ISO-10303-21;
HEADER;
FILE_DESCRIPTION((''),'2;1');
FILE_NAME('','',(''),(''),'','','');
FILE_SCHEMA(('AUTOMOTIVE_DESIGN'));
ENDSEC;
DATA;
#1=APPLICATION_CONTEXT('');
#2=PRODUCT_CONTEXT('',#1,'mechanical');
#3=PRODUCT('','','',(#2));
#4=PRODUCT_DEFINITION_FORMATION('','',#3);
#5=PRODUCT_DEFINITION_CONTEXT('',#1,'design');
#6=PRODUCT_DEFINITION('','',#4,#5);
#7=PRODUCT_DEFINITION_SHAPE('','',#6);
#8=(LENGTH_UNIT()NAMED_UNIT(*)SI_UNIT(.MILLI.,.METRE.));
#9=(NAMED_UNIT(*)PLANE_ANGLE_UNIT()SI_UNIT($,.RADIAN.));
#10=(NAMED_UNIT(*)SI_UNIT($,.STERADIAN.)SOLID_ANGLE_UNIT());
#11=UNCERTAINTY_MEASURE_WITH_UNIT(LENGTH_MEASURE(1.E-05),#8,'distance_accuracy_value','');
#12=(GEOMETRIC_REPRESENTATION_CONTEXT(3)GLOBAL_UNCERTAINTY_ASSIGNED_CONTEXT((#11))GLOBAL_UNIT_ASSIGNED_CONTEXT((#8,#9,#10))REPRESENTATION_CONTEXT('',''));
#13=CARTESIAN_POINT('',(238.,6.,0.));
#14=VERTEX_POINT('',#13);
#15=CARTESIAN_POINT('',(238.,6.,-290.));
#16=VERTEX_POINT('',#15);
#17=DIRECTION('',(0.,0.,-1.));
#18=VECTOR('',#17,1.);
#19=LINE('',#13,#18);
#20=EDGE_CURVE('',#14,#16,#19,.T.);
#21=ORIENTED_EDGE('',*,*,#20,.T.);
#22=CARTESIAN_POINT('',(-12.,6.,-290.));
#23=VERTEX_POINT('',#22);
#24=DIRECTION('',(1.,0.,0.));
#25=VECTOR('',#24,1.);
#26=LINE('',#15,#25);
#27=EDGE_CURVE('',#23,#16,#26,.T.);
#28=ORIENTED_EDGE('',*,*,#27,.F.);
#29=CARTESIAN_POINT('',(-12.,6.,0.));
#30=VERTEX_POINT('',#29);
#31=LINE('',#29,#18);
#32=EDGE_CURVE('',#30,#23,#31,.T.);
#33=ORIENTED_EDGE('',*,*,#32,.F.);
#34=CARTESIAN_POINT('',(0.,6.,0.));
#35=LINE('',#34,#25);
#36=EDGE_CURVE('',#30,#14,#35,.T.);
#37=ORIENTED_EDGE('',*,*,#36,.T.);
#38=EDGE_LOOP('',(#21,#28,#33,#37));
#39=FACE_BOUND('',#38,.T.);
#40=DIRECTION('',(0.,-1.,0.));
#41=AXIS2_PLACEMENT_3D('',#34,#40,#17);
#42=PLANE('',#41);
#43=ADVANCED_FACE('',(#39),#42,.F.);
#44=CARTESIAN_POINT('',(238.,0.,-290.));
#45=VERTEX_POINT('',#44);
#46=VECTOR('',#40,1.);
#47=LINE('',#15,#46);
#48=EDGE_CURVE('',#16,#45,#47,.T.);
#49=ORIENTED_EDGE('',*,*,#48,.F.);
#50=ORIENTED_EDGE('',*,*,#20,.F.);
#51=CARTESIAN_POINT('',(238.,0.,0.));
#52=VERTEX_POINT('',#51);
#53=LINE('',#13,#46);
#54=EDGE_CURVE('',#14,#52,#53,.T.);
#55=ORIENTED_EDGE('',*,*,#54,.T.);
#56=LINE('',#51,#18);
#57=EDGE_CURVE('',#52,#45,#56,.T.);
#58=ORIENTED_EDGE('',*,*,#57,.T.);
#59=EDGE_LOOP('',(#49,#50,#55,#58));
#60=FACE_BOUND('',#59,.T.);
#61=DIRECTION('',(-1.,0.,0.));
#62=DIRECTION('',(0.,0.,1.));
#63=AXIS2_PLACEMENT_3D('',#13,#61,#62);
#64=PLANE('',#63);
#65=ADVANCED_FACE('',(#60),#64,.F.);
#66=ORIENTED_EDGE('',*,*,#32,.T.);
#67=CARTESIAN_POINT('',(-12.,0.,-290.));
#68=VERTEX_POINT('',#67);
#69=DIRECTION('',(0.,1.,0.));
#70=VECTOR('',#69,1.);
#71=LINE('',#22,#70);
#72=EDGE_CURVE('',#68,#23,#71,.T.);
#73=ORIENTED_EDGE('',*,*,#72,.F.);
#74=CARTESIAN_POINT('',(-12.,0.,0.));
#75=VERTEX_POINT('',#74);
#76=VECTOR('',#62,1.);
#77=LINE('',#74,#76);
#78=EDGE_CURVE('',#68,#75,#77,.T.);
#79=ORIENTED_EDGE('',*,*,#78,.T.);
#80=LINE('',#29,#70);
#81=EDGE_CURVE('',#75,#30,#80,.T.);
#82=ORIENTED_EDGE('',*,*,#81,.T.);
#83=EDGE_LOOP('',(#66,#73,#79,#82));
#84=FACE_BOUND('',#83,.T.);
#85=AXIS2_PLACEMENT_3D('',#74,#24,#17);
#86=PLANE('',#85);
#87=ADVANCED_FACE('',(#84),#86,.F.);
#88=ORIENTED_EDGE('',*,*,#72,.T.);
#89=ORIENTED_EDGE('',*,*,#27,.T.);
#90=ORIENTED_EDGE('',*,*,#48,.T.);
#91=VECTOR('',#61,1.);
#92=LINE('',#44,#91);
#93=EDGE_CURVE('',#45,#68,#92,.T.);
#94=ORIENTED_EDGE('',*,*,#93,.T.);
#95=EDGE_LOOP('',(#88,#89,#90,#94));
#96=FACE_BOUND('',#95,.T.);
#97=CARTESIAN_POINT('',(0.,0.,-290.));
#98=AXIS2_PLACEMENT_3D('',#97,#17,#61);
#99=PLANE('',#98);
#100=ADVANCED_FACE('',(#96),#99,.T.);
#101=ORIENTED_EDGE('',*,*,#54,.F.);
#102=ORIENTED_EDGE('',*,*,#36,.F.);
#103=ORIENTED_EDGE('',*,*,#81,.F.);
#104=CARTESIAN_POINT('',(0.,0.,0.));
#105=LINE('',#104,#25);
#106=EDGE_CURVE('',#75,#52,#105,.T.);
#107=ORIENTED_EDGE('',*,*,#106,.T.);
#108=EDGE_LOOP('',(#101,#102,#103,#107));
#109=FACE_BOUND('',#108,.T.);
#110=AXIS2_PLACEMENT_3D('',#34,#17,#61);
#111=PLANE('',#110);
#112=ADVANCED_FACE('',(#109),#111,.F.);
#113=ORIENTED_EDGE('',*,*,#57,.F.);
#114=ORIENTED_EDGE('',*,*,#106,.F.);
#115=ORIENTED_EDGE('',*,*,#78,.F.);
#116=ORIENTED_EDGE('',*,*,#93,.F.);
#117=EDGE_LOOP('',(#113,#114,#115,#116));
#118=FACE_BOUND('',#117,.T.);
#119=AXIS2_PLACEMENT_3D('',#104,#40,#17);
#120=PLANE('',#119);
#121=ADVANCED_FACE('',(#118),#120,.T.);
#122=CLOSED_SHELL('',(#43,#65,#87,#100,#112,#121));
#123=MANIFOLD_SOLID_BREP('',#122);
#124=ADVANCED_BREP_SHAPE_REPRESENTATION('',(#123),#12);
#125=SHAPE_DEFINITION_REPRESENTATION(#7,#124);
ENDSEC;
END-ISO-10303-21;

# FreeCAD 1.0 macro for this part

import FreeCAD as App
import Part
import Sketcher
Q = App.Units.Quantity


def add_polygon(sketch, points):
    """Adds a closed chain of lines whose ends are joined by coincident constraints."""
    first, n = sketch.GeometryCount, len(points)
    for a, b in zip(points, points[1:] + points[:1]):
        sketch.addGeometry(Part.LineSegment(App.Vector(*a, 0), App.Vector(*b, 0)), False)
    for i in range(n):
        sketch.addConstraint(Sketcher.Constraint("Coincident", first + i, 2, first + (i + 1) % n, 1))

doc = App.newDocument("Part")
body = doc.addObject("PartDesign::Body", "Body")

# Sketch on XZ plane
sketch1 = body.newObject("Sketcher::SketchObject", "Sketch")
sketch1.AttachmentSupport = (doc.getObject("XZ_Plane"), [""])
sketch1.MapMode = "FlatFace"
add_polygon(sketch1, [(0, -250), (0, 0), (238, 0), (238, -250)])  # lines 0-3
sketch1.addConstraint([
    Sketcher.Constraint("Vertical", 0),
    Sketcher.Constraint("Horizontal", 1),
    Sketcher.Constraint("Vertical", 2),
    Sketcher.Constraint("Horizontal", 3),
    Sketcher.Constraint("Coincident", 0, 2, -1, 1),
    Sketcher.Constraint("DistanceX", 1, 1, 1, 2, Q("238 mm")),
    Sketcher.Constraint("DistanceY", 0, 1, 0, 2, Q("250 mm")),
])
pad1 = body.newObject("PartDesign::Pad", "Pad")
pad1.Profile = sketch1
pad1.Length = 6
pad1.Reversed = True

# Sketch on YZ plane
sketch2 = body.newObject("Sketcher::SketchObject", "Sketch001")
sketch2.AttachmentSupport = (doc.getObject("YZ_Plane"), [""])
sketch2.MapMode = "FlatFace"
add_polygon(sketch2, [(6, -250), (0, -250), (0, 0), (6, 0)])  # lines 0-3
sketch2.addConstraint([
    Sketcher.Constraint("Horizontal", 0),
    Sketcher.Constraint("Vertical", 1),
    Sketcher.Constraint("Horizontal", 2),
    Sketcher.Constraint("Vertical", 3),
    Sketcher.Constraint("Coincident", 1, 2, -1, 1),
    Sketcher.Constraint("DistanceX", 0, 2, 0, 1, Q("6 mm")),
    Sketcher.Constraint("DistanceY", 1, 1, 1, 2, Q("250 mm")),
])
pad2 = body.newObject("PartDesign::Pad", "Pad001")
pad2.Profile = sketch2
pad2.Length = 12
pad2.Reversed = True

# Sketch on XY plane
sketch3 = body.newObject("Sketcher::SketchObject", "Sketch002")
sketch3.AttachmentSupport = (doc.getObject("XY_Plane"), [""])
sketch3.MapMode = "FlatFace"
sketch3.AttachmentOffset = App.Placement(App.Vector(0, 0, -250), App.Rotation())
add_polygon(sketch3, [(238, 6), (238, 0), (-12, 0), (-12, 6)])  # lines 0-3
sketch3.addConstraint([
    Sketcher.Constraint("Vertical", 0),
    Sketcher.Constraint("Horizontal", 1),
    Sketcher.Constraint("Vertical", 2),
    Sketcher.Constraint("Horizontal", 3),
    Sketcher.Constraint("PointOnObject", 0, 2, -1),
    Sketcher.Constraint("DistanceX", 1, 2, 1, 1, Q("250 mm")),
    Sketcher.Constraint("DistanceY", 0, 2, 0, 1, Q("6 mm")),
    Sketcher.Constraint("DistanceX", -1, 1, 0, 2, Q("238 mm")),
])
pad3 = body.newObject("PartDesign::Pad", "Pad002")
pad3.Profile = sketch3
pad3.Length = 40
pad3.Reversed = True

doc.recompute()
